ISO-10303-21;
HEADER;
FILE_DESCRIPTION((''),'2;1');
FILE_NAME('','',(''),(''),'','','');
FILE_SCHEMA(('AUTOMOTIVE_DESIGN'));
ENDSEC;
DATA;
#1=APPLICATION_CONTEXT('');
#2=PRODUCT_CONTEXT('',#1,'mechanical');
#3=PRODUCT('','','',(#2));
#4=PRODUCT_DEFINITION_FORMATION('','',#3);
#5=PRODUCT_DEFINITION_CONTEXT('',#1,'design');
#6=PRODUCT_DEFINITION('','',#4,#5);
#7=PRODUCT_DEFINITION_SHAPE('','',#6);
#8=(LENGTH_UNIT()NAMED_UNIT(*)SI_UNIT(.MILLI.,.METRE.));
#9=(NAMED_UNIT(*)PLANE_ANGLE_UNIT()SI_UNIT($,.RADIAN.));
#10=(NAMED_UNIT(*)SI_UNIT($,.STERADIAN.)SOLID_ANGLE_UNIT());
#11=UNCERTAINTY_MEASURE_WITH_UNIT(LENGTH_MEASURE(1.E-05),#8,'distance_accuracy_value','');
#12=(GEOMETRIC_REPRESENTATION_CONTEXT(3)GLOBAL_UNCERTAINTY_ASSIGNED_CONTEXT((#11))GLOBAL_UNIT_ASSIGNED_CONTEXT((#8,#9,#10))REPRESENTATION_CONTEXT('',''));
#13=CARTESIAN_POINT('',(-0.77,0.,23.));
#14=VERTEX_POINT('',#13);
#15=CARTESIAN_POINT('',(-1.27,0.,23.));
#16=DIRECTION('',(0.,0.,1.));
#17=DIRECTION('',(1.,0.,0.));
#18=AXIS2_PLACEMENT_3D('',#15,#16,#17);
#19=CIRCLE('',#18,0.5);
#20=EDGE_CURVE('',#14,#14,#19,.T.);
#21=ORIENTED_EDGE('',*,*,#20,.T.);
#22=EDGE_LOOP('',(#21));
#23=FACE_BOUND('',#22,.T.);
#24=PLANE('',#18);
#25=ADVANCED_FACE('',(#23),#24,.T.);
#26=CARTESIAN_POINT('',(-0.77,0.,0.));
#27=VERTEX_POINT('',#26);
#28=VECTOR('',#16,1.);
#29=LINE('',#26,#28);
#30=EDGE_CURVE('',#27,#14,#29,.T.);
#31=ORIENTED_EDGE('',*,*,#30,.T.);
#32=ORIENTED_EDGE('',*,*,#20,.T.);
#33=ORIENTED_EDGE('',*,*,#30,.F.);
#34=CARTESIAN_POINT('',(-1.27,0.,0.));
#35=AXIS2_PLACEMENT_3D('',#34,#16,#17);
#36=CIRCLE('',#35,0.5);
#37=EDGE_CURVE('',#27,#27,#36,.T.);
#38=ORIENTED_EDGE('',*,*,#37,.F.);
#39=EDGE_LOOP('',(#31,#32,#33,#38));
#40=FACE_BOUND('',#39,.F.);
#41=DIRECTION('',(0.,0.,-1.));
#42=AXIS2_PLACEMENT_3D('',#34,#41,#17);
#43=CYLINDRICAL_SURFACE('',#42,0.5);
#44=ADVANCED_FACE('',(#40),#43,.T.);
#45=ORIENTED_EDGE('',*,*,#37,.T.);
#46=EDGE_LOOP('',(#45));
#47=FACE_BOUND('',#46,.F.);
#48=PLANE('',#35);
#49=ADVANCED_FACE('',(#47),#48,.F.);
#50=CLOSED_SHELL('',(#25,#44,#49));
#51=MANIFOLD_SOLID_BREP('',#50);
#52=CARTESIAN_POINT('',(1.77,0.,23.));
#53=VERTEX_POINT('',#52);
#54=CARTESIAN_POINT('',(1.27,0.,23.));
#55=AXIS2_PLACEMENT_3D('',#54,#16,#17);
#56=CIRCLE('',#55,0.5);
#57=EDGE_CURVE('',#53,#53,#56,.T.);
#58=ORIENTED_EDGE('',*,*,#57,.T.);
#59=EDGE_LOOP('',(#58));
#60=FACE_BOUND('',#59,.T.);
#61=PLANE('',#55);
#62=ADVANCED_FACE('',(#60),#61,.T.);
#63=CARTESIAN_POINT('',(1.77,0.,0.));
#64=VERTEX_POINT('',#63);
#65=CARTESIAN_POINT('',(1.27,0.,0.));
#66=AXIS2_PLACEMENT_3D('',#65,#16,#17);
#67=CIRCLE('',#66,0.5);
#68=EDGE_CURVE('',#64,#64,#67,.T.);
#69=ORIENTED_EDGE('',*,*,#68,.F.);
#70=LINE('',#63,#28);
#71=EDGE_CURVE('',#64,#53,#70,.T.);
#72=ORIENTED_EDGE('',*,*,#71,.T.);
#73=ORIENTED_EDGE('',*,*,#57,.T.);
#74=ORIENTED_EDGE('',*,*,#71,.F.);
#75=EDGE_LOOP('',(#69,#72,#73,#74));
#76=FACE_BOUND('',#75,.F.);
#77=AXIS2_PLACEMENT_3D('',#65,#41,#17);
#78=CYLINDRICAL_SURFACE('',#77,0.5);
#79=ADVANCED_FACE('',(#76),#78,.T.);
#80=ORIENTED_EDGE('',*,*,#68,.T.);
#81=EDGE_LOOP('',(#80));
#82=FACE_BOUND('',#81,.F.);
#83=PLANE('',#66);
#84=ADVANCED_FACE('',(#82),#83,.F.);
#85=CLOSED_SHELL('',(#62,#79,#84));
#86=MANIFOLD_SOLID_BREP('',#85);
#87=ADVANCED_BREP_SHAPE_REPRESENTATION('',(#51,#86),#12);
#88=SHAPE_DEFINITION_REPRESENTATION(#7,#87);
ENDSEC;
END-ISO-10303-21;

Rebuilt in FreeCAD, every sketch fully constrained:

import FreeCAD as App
import Part
import Sketcher

doc = App.newDocument("Part")
params = doc.addObject("Spreadsheet::Sheet", "Params")
for row, (alias, value) in enumerate([
    ("sketch1_diameter", "1 mm"),
    ("pad1_length", "23 mm"),
], start=1):
    params.set(f"A{row}", alias)
    params.set(f"B{row}", "=" + value)
    params.setAlias(f"B{row}", alias)

body = doc.addObject("PartDesign::Body", "Body")
body.AllowCompound = True

sketch1 = body.newObject("Sketcher::SketchObject", "Sketch")
sketch1.AttachmentSupport = (doc.getObject("XY_Plane"), [""])
sketch1.MapMode = "FlatFace"
sketch1.addGeometry(Part.Circle(App.Vector(1.27, 0, 0), App.Vector(0, 0, 1), 0.5), False)
sketch1.addGeometry(Part.Circle(App.Vector(-1.27, 0, 0), App.Vector(0, 0, 1), 0.5), False)
sketch1.addConstraint(Sketcher.Constraint("Equal", 0, 1))
sketch1.addConstraint(Sketcher.Constraint("Symmetric", 0, 3, 1, 3, -1, 1))
sketch1.addConstraint(Sketcher.Constraint("PointOnObject", 0, 3, -1))
sketch1.addConstraint(Sketcher.Constraint("Diameter", 0, 1.0))
sketch1.addConstraint(Sketcher.Constraint("DistanceX", -1, 1, 0, 3, 1.27))
sketch1.setExpression("Constraints[3]", "Params.sketch1_diameter")
pad1 = body.newObject("PartDesign::Pad", "Pad")
pad1.Profile = sketch1
pad1.setExpression("Length", "Params.pad1_length")

doc.recompute()
